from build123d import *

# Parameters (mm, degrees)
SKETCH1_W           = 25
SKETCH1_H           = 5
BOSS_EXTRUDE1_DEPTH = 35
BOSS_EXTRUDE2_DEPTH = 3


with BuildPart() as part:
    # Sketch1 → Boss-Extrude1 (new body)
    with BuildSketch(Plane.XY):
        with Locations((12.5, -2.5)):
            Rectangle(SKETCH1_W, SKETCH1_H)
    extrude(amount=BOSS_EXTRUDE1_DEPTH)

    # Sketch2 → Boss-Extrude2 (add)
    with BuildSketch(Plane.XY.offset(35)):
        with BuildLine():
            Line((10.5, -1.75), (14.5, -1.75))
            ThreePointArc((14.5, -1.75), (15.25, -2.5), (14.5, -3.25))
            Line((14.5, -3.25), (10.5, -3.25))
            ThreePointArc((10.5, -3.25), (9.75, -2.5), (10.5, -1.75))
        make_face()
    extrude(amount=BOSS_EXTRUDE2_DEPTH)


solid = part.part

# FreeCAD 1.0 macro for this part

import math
import FreeCAD as App
import Part
import Sketcher
from FreeCAD import Vector
Q = App.Units.Quantity

doc = App.newDocument("Part")
body = doc.addObject("PartDesign::Body", "Body")

# Sketch on XY plane
sketch1 = doc.addObject("Sketcher::SketchObject", "Sketch")
body.addObject(sketch1)
sketch1.AttachmentSupport = (doc.XY_Plane, [""])
sketch1.MapMode = "FlatFace"
sketch1.addGeometry([
    Part.LineSegment(Vector(0, 0, 0), Vector(0, -5, 0)),
    Part.LineSegment(Vector(0, -5, 0), Vector(25, -5, 0)),
    Part.LineSegment(Vector(25, -5, 0), Vector(25, 0, 0)),
    Part.LineSegment(Vector(25, 0, 0), Vector(0, 0, 0)),
], False)
sketch1.addConstraint([
    Sketcher.Constraint("Coincident", 0, 2, 1, 1),
    Sketcher.Constraint("Coincident", 1, 2, 2, 1),
    Sketcher.Constraint("Coincident", 2, 2, 3, 1),
    Sketcher.Constraint("Coincident", 3, 2, 0, 1),
    Sketcher.Constraint("Vertical", 0),
    Sketcher.Constraint("Horizontal", 1),
    Sketcher.Constraint("Vertical", 2),
    Sketcher.Constraint("Horizontal", 3),
    Sketcher.Constraint("Coincident", 3, 2, -1, 1),
    Sketcher.Constraint("DistanceX", 1, 1, 1, 2, Q("25 mm")),
    Sketcher.Constraint("DistanceY", 0, 2, 0, 1, Q("5 mm")),
])
pad1 = doc.addObject("PartDesign::Pad", "Pad")
body.addObject(pad1)
pad1.Profile = sketch1
pad1.Length = 35

# Sketch on XY plane
sketch2 = doc.addObject("Sketcher::SketchObject", "Sketch001")
body.addObject(sketch2)
sketch2.AttachmentSupport = (doc.XY_Plane, [""])
sketch2.MapMode = "FlatFace"
sketch2.AttachmentOffset = App.Placement(Vector(0, 0, 35), App.Rotation())
sketch2.addGeometry([
    Part.LineSegment(Vector(14.5, -1.8, 0), Vector(10.5, -1.8, 0)),
    Part.ArcOfCircle(Part.Circle(Vector(10.5, -2.5, 0), Vector(0, 0, 1), 0.8), math.radians(90), math.radians(270)),
    Part.LineSegment(Vector(10.5, -3.2, 0), Vector(14.5, -3.2, 0)),
    Part.ArcOfCircle(Part.Circle(Vector(14.5, -2.5, 0), Vector(0, 0, 1), 0.8), math.radians(-90), math.radians(90)),
], False)
sketch2.addConstraint([
    Sketcher.Constraint("Tangent", 0, 2, 1, 1),
    Sketcher.Constraint("Tangent", 1, 2, 2, 1),
    Sketcher.Constraint("Tangent", 2, 2, 3, 1),
    Sketcher.Constraint("Tangent", 3, 2, 0, 1),
    Sketcher.Constraint("Horizontal", 0),
    Sketcher.Constraint("Horizontal", 2),
    Sketcher.Constraint("DistanceX", 0, 2, 0, 1, Q("4 mm")),
    Sketcher.Constraint("Radius", 1, Q("0.75 mm")),
    Sketcher.Constraint("DistanceX", -1, 1, 1, 3, Q("10.5 mm")),
    Sketcher.Constraint("DistanceY", 1, 3, -1, 1, Q("2.5 mm")),
])
pad2 = doc.addObject("PartDesign::Pad", "Pad001")
body.addObject(pad2)
pad2.Profile = sketch2
pad2.Length = 3

doc.recompute()
